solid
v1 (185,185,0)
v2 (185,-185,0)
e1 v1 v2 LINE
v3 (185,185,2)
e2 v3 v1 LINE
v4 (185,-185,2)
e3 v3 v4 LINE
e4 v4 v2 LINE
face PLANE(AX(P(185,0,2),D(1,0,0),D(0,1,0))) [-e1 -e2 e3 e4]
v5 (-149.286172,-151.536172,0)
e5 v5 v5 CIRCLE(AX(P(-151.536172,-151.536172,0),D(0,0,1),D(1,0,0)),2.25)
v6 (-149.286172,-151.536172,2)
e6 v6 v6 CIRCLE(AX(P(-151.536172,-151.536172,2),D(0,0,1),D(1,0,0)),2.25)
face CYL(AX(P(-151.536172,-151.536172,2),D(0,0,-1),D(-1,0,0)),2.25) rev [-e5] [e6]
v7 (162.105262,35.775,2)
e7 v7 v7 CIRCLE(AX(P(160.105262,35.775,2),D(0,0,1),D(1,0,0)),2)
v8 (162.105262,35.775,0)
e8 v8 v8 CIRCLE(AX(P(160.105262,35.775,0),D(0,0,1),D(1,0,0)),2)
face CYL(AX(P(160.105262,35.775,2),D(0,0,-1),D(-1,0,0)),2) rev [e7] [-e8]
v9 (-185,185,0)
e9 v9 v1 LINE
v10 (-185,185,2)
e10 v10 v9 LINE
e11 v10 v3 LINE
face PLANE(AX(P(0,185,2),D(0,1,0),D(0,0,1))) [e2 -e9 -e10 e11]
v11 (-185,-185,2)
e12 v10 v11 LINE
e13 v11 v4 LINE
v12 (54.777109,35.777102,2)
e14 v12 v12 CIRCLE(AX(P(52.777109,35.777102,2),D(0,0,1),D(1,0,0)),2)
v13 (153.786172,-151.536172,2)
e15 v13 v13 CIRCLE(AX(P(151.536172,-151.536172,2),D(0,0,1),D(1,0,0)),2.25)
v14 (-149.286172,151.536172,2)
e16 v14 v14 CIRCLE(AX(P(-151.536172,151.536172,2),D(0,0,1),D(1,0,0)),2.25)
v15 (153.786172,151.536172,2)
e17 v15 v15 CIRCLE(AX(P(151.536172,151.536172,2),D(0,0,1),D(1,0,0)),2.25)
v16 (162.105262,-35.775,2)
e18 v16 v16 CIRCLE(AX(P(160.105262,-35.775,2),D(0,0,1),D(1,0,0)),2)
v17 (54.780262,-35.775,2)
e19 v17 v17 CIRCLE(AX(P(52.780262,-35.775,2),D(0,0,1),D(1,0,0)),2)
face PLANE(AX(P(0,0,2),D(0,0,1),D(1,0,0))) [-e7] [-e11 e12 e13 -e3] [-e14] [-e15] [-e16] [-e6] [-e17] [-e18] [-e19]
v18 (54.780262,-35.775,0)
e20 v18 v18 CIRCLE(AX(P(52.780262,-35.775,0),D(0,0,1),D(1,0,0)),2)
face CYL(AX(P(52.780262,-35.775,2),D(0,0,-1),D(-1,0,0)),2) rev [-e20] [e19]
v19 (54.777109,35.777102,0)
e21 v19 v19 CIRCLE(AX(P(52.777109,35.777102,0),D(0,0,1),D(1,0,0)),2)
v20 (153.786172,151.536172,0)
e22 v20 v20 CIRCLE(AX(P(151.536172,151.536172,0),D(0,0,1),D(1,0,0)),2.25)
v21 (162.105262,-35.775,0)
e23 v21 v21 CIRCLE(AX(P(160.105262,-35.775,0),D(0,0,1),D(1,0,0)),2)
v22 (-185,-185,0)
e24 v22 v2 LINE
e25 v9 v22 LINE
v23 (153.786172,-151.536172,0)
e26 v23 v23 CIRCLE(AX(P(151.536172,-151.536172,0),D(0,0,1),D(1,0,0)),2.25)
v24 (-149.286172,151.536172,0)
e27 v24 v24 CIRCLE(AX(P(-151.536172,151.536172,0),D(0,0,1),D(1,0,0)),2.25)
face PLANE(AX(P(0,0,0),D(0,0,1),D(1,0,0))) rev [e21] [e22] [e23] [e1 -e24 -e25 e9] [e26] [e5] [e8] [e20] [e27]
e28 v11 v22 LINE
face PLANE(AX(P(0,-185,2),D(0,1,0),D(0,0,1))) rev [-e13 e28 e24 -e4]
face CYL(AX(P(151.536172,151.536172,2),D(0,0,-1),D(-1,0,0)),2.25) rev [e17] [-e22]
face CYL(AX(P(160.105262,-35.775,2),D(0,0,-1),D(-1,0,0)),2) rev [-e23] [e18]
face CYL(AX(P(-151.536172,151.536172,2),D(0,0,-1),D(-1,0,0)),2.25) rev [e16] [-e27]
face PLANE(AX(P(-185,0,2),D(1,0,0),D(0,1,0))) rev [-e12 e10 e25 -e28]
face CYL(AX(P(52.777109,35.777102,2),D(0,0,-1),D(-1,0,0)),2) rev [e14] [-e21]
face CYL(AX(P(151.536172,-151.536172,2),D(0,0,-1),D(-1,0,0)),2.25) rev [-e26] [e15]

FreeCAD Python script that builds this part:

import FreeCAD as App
import Part
import Sketcher

V = App.Vector

doc = App.newDocument("Part")
params = doc.addObject("Spreadsheet::Sheet", "Params")
for row, (alias, value) in enumerate([
    ("sketch1_diameter", "4 mm"),
    ("sketch1_diameter2", "4.5 mm"),
    ("sketch1_width", "370 mm"),
    ("pad1_length", "2 mm"),
], start=1):
    params.set(f"A{row}", alias)
    params.set(f"B{row}", "=" + value)
    params.setAlias(f"B{row}", alias)

body = doc.addObject("PartDesign::Body", "Body")

# Sketch on XY plane
sketch1 = doc.addObject("Sketcher::SketchObject", "Sketch")
body.addObject(sketch1)
sketch1.AttachmentSupport = (doc.XY_Plane, [""])
sketch1.MapMode = "FlatFace"
sketch1.addGeometry(Part.LineSegment(V(-185, 185, 0), V(-185, -185, 0)), False)
sketch1.addGeometry(Part.LineSegment(V(-185, -185, 0), V(185, -185, 0)), False)
sketch1.addGeometry(Part.LineSegment(V(185, -185, 0), V(185, 185, 0)), False)
sketch1.addGeometry(Part.LineSegment(V(185, 185, 0), V(-185, 185, 0)), False)
sketch1.addGeometry(Part.Circle(V(-151.5, -151.5, 0), V(0, 0, 1), 2.2), False)
sketch1.addGeometry(Part.Circle(V(151.5, -151.5, 0), V(0, 0, 1), 2.2), False)
sketch1.addGeometry(Part.Circle(V(-151.5, 151.5, 0), V(0, 0, 1), 2.2), False)
sketch1.addGeometry(Part.Circle(V(151.5, 151.5, 0), V(0, 0, 1), 2.2), False)
sketch1.addGeometry(Part.Circle(V(52.8, -35.8, 0), V(0, 0, 1), 2), False)
sketch1.addGeometry(Part.Circle(V(160.1, 35.8, 0), V(0, 0, 1), 2), False)
sketch1.addGeometry(Part.Circle(V(160.1, -35.8, 0), V(0, 0, 1), 2), False)
sketch1.addGeometry(Part.Circle(V(52.8, 35.8, 0), V(0, 0, 1), 2), False)
sketch1.addConstraint(Sketcher.Constraint("Coincident", 0, 2, 1, 1))
sketch1.addConstraint(Sketcher.Constraint("Coincident", 1, 2, 2, 1))
sketch1.addConstraint(Sketcher.Constraint("Coincident", 2, 2, 3, 1))
sketch1.addConstraint(Sketcher.Constraint("Coincident", 3, 2, 0, 1))
sketch1.addConstraint(Sketcher.Constraint("Vertical", 0))
sketch1.addConstraint(Sketcher.Constraint("Horizontal", 1))
sketch1.addConstraint(Sketcher.Constraint("Vertical", 2))
sketch1.addConstraint(Sketcher.Constraint("Horizontal", 3))
sketch1.addConstraint(Sketcher.Constraint("Equal", 4, 5))
sketch1.addConstraint(Sketcher.Constraint("Equal", 5, 6))
sketch1.addConstraint(Sketcher.Constraint("Equal", 6, 7))
sketch1.addConstraint(Sketcher.Constraint("Equal", 8, 9))
sketch1.addConstraint(Sketcher.Constraint("Equal", 9, 10))
sketch1.addConstraint(Sketcher.Constraint("Equal", 10, 11))
sketch1.addConstraint(Sketcher.Constraint("Symmetric", 5, 3, 6, 3, -1, 1))
sketch1.addConstraint(Sketcher.Constraint("Symmetric", 4, 3, 7, 3, -1, 1))
sketch1.addConstraint(Sketcher.Constraint("Symmetric", 0, 2, 2, 2, -1, 1))
sketch1.addConstraint(Sketcher.Constraint("Symmetric", 4, 3, 5, 3, -2))
sketch1.addConstraint(Sketcher.Constraint("Symmetric", 9, 3, 10, 3, -1))
sketch1.addConstraint(Sketcher.Constraint("Horizontal", 8, 3, 10, 3))
sketch1.addConstraint(Sketcher.Constraint("Equal", 3, 0))
sketch1.addConstraint(Sketcher.Constraint("Diameter", 8, 4.0))
sketch1.addConstraint(Sketcher.Constraint("Diameter", 4, 4.5))
sketch1.addConstraint(Sketcher.Constraint("DistanceX", 1, 1, 1, 2, 370.0))
sketch1.addConstraint(Sketcher.Constraint("DistanceY", 8, 3, 9, 3, 71.55))
sketch1.addConstraint(Sketcher.Constraint("DistanceX", 8, 3, 9, 3, 107.325))
sketch1.addConstraint(Sketcher.Constraint("DistanceY", -1, 1, 11, 3, 35.777102))
sketch1.addConstraint(Sketcher.Constraint("DistanceX", 4, 3, -1, 1, 151.536172))
sketch1.addConstraint(Sketcher.Constraint("DistanceY", 4, 3, -1, 1, 151.536172))
sketch1.addConstraint(Sketcher.Constraint("DistanceX", -1, 1, 11, 3, 52.777109))
sketch1.addConstraint(Sketcher.Constraint("DistanceX", 8, 3, 5, 3, 98.755909))
sketch1.setExpression("Constraints[21]", "Params.sketch1_diameter")
sketch1.setExpression("Constraints[22]", "Params.sketch1_diameter2")
sketch1.setExpression("Constraints[23]", "Params.sketch1_width")
pad1 = doc.addObject("PartDesign::Pad", "Pad")
body.addObject(pad1)
pad1.Profile = sketch1
pad1.setExpression("Length", "Params.pad1_length")

doc.recompute()
